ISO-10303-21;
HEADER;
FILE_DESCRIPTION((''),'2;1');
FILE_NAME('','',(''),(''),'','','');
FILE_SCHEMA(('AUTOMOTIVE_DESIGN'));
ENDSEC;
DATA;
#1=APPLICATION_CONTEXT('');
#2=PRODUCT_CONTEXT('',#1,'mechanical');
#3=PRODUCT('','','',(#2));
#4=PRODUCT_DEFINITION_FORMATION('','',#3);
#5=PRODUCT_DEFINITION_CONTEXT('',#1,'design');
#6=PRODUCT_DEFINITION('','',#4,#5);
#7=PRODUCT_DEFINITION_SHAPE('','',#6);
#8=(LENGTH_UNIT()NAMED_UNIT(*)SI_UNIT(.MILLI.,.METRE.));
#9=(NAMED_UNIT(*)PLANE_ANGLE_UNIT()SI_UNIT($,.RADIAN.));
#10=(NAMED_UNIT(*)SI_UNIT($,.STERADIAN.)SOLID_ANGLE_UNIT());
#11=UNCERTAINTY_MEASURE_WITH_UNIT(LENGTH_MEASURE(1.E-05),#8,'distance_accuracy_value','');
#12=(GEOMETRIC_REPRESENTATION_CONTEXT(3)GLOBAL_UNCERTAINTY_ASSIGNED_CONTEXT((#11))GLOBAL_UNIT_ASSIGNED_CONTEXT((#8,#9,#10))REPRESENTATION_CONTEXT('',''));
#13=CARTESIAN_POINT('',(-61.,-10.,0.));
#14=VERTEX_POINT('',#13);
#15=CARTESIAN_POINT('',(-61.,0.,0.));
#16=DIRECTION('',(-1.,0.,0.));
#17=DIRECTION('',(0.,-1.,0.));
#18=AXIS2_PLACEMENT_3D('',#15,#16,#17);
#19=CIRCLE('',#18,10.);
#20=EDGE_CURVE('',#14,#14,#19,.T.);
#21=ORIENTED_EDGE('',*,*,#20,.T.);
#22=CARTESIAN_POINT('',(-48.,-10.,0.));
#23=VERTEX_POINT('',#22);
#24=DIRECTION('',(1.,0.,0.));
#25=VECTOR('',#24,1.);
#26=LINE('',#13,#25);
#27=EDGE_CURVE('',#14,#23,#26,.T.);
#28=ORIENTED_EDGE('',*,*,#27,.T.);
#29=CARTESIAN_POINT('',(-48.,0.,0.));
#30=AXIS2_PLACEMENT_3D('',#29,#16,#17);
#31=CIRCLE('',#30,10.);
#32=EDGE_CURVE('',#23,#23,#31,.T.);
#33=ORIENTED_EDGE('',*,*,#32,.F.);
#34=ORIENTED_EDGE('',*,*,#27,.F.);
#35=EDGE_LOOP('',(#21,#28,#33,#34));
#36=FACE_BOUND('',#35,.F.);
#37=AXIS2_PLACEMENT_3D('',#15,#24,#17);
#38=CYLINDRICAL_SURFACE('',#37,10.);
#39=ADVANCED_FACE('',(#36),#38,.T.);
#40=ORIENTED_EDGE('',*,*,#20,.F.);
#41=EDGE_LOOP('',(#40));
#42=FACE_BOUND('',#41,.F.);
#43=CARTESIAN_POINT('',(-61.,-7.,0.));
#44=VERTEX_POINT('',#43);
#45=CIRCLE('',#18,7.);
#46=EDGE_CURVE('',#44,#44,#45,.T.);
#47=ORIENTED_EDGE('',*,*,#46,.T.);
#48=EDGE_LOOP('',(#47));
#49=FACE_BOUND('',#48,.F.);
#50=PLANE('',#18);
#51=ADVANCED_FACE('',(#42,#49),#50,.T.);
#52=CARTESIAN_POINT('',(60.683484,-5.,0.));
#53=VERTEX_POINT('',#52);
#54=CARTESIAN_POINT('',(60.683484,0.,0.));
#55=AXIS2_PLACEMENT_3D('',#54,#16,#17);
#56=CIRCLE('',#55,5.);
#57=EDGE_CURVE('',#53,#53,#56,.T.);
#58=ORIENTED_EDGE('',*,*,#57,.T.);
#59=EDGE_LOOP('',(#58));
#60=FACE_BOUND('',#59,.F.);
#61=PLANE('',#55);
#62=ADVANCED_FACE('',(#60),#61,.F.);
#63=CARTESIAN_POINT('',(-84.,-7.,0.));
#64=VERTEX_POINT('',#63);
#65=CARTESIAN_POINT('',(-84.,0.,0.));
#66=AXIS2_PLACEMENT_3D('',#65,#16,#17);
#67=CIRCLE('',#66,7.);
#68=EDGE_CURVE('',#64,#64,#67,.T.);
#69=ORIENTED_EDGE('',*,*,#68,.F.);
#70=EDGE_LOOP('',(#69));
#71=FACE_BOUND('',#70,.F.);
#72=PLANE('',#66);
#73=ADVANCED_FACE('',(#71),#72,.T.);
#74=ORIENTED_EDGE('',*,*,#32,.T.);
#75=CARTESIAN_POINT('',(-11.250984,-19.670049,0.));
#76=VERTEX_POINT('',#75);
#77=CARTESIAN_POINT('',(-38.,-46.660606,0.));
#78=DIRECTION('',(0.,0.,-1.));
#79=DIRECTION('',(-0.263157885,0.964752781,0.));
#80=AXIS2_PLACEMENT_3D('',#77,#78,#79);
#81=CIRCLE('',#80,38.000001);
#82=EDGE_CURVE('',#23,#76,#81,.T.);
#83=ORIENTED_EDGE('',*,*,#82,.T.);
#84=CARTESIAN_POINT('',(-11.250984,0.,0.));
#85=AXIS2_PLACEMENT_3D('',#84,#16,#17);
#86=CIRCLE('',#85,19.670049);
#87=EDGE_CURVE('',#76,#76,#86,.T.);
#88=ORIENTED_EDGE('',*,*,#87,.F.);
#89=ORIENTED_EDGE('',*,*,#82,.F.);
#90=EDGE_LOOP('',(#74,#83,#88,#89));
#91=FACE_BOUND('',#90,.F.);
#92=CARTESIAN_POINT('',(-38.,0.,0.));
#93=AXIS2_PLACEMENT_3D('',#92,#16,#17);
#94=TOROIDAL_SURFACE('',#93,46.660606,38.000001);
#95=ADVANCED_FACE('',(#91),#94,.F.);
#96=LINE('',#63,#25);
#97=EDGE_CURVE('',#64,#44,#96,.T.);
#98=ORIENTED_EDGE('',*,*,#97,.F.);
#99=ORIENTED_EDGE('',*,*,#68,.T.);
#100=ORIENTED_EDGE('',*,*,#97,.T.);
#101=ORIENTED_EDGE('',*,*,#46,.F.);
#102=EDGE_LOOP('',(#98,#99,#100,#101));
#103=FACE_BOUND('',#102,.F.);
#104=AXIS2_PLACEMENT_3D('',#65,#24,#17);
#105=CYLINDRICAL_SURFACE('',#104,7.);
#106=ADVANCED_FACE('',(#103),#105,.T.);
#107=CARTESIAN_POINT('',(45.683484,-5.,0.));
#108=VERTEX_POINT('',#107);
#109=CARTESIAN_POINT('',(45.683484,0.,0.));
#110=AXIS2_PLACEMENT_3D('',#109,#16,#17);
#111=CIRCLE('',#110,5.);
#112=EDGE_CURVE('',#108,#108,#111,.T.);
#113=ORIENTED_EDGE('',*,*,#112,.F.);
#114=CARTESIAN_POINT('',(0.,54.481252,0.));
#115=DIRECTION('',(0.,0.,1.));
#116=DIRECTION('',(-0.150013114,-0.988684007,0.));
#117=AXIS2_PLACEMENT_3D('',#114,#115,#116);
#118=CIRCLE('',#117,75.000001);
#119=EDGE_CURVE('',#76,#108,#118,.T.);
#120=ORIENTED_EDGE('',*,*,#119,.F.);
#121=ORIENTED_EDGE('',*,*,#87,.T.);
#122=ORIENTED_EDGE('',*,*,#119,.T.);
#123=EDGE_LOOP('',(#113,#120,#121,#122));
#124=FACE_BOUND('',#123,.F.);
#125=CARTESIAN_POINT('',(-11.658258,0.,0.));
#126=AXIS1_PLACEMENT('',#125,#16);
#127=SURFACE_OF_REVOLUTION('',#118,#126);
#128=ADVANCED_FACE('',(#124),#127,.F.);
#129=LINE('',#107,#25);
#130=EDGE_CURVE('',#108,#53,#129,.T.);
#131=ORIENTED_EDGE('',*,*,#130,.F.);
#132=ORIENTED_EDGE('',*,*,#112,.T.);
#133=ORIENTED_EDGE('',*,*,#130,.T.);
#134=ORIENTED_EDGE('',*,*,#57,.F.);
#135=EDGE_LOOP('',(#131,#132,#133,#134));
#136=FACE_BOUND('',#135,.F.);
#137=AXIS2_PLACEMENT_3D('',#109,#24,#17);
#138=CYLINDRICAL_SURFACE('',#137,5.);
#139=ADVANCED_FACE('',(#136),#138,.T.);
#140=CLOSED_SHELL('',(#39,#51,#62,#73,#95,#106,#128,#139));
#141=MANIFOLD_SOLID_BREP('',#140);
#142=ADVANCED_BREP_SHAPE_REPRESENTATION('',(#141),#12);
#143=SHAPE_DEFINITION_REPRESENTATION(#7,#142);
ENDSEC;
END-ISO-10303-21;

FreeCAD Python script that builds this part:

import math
import FreeCAD as App
import Part
import Sketcher

doc = App.newDocument("Part")
body = doc.addObject("PartDesign::Body", "Body")

# Sketch on XY plane
sketch1 = body.newObject("Sketcher::SketchObject", "Sketch")
sketch1.AttachmentSupport = (doc.getObject("XY_Plane"), [""])
sketch1.MapMode = "FlatFace"
sketch1.addGeometry(Part.LineSegment(App.Vector(-84, -7, 0), App.Vector(-61, -7, 0)), False)
sketch1.addGeometry(Part.LineSegment(App.Vector(-61, -7, 0), App.Vector(-61, -10, 0)), False)
sketch1.addGeometry(Part.LineSegment(App.Vector(-61, -10, 0), App.Vector(-48, -10, 0)), False)
sketch1.addGeometry(Part.ArcOfCircle(Part.Circle(App.Vector(-38, -46.660606, 0), App.Vector(0, 0, 1), 38.000001), math.radians(45.257523), math.radians(105.257523)), False)
sketch1.addGeometry(Part.ArcOfCircle(Part.Circle(App.Vector(0, 54.481252, 0), App.Vector(0, 0, 1), 75.000001), math.radians(-98.627687), math.radians(-52.474597)), False)
sketch1.addGeometry(Part.LineSegment(App.Vector(45.683484, -5, 0), App.Vector(60.683484, -5, 0)), False)
sketch1.addGeometry(Part.LineSegment(App.Vector(60.683484, -5, 0), App.Vector(60.683484, 0, 0)), False)
sketch1.addGeometry(Part.LineSegment(App.Vector(60.683484, 0, 0), App.Vector(-84, 0, 0)), False)
sketch1.addGeometry(Part.LineSegment(App.Vector(-84, 0, 0), App.Vector(-84, -7, 0)), False)
sketch1.addConstraint(Sketcher.Constraint("Coincident", 0, 2, 1, 1))
sketch1.addConstraint(Sketcher.Constraint("Coincident", 1, 2, 2, 1))
sketch1.addConstraint(Sketcher.Constraint("Coincident", 2, 2, 3, 2))
sketch1.addConstraint(Sketcher.Constraint("Coincident", 3, 1, 4, 1))
sketch1.addConstraint(Sketcher.Constraint("Coincident", 4, 2, 5, 1))
sketch1.addConstraint(Sketcher.Constraint("Coincident", 5, 2, 6, 1))
sketch1.addConstraint(Sketcher.Constraint("Coincident", 6, 2, 7, 1))
sketch1.addConstraint(Sketcher.Constraint("Coincident", 7, 2, 8, 1))
sketch1.addConstraint(Sketcher.Constraint("Coincident", 8, 2, 0, 1))
sketch1.addConstraint(Sketcher.Constraint("Horizontal", 0))
sketch1.addConstraint(Sketcher.Constraint("Vertical", 1))
sketch1.addConstraint(Sketcher.Constraint("Horizontal", 2))
sketch1.addConstraint(Sketcher.Constraint("Horizontal", 5))
sketch1.addConstraint(Sketcher.Constraint("Vertical", 6))
sketch1.addConstraint(Sketcher.Constraint("Horizontal", 7))
sketch1.addConstraint(Sketcher.Constraint("Vertical", 8))
sketch1.addConstraint(Sketcher.Constraint("PointOnObject", 4, 3, -2))
sketch1.addConstraint(Sketcher.Constraint("PointOnObject", 6, 2, -1))
sketch1.addConstraint(Sketcher.Constraint("Radius", 3, 38.000001))
sketch1.addConstraint(Sketcher.Constraint("Radius", 4, 75.000001))
sketch1.addConstraint(Sketcher.Constraint("DistanceX", 0, 1, 0, 2, 23.0))
sketch1.addConstraint(Sketcher.Constraint("DistanceX", 2, 1, 2, 2, 13.0))
sketch1.addConstraint(Sketcher.Constraint("DistanceX", 5, 1, 5, 2, 15.0))
sketch1.addConstraint(Sketcher.Constraint("DistanceY", 1, 2, 1, 1, 3.0))
sketch1.addConstraint(Sketcher.Constraint("DistanceY", 6, 1, 6, 2, 5.0))
sketch1.addConstraint(Sketcher.Constraint("DistanceY", 8, 2, 8, 1, 7.0))
sketch1.addConstraint(Sketcher.Constraint("DistanceX", 3, 3, -1, 1, 38.0))
sketch1.addConstraint(Sketcher.Constraint("DistanceX", 0, 2, -1, 1, 61.0))
sketch1.addConstraint(Sketcher.Constraint("DistanceY", 3, 1, 4, 3, 74.151301))
revolution = body.newObject("PartDesign::Revolution", "Revolution")
revolution.Profile = sketch1
revolution.ReferenceAxis = (sketch1, ["H_Axis"])
revolution.Angle = 360

doc.recompute()
